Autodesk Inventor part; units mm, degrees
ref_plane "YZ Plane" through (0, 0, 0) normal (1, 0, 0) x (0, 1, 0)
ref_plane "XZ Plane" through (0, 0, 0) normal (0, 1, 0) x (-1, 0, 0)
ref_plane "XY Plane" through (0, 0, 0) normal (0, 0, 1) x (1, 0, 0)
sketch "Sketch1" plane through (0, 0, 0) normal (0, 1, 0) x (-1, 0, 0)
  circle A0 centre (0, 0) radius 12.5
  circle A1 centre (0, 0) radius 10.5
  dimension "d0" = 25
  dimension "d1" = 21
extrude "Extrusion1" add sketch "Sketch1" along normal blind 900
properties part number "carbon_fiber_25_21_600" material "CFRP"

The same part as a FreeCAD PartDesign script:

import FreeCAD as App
import Part
import Sketcher
from FreeCAD import Vector

doc = App.newDocument("Part")
body = doc.addObject("PartDesign::Body", "Body")

# Sketch on XZ plane
sketch1 = doc.addObject("Sketcher::SketchObject", "Sketch")
body.addObject(sketch1)
sketch1.AttachmentSupport = (doc.XZ_Plane, [""])
sketch1.MapMode = "FlatFace"
sketch1.addGeometry([
    Part.Circle(Vector(0, 0, 0), Vector(0, 0, 1), 12),
    Part.Circle(Vector(0, 0, 0), Vector(0, 0, 1), 10),
], False)
sketch1.addConstraint([
    Sketcher.Constraint("Coincident", 0, 3, -1, 1),
    Sketcher.Constraint("Coincident", 1, 3, -1, 1),
    Sketcher.Constraint("Diameter", 0, 25.0),
    Sketcher.Constraint("Diameter", 1, 21.0),
])
pad1 = doc.addObject("PartDesign::Pad", "Pad")
body.addObject(pad1)
pad1.Profile = sketch1
pad1.Length = 900
pad1.Reversed = True

doc.recompute()
